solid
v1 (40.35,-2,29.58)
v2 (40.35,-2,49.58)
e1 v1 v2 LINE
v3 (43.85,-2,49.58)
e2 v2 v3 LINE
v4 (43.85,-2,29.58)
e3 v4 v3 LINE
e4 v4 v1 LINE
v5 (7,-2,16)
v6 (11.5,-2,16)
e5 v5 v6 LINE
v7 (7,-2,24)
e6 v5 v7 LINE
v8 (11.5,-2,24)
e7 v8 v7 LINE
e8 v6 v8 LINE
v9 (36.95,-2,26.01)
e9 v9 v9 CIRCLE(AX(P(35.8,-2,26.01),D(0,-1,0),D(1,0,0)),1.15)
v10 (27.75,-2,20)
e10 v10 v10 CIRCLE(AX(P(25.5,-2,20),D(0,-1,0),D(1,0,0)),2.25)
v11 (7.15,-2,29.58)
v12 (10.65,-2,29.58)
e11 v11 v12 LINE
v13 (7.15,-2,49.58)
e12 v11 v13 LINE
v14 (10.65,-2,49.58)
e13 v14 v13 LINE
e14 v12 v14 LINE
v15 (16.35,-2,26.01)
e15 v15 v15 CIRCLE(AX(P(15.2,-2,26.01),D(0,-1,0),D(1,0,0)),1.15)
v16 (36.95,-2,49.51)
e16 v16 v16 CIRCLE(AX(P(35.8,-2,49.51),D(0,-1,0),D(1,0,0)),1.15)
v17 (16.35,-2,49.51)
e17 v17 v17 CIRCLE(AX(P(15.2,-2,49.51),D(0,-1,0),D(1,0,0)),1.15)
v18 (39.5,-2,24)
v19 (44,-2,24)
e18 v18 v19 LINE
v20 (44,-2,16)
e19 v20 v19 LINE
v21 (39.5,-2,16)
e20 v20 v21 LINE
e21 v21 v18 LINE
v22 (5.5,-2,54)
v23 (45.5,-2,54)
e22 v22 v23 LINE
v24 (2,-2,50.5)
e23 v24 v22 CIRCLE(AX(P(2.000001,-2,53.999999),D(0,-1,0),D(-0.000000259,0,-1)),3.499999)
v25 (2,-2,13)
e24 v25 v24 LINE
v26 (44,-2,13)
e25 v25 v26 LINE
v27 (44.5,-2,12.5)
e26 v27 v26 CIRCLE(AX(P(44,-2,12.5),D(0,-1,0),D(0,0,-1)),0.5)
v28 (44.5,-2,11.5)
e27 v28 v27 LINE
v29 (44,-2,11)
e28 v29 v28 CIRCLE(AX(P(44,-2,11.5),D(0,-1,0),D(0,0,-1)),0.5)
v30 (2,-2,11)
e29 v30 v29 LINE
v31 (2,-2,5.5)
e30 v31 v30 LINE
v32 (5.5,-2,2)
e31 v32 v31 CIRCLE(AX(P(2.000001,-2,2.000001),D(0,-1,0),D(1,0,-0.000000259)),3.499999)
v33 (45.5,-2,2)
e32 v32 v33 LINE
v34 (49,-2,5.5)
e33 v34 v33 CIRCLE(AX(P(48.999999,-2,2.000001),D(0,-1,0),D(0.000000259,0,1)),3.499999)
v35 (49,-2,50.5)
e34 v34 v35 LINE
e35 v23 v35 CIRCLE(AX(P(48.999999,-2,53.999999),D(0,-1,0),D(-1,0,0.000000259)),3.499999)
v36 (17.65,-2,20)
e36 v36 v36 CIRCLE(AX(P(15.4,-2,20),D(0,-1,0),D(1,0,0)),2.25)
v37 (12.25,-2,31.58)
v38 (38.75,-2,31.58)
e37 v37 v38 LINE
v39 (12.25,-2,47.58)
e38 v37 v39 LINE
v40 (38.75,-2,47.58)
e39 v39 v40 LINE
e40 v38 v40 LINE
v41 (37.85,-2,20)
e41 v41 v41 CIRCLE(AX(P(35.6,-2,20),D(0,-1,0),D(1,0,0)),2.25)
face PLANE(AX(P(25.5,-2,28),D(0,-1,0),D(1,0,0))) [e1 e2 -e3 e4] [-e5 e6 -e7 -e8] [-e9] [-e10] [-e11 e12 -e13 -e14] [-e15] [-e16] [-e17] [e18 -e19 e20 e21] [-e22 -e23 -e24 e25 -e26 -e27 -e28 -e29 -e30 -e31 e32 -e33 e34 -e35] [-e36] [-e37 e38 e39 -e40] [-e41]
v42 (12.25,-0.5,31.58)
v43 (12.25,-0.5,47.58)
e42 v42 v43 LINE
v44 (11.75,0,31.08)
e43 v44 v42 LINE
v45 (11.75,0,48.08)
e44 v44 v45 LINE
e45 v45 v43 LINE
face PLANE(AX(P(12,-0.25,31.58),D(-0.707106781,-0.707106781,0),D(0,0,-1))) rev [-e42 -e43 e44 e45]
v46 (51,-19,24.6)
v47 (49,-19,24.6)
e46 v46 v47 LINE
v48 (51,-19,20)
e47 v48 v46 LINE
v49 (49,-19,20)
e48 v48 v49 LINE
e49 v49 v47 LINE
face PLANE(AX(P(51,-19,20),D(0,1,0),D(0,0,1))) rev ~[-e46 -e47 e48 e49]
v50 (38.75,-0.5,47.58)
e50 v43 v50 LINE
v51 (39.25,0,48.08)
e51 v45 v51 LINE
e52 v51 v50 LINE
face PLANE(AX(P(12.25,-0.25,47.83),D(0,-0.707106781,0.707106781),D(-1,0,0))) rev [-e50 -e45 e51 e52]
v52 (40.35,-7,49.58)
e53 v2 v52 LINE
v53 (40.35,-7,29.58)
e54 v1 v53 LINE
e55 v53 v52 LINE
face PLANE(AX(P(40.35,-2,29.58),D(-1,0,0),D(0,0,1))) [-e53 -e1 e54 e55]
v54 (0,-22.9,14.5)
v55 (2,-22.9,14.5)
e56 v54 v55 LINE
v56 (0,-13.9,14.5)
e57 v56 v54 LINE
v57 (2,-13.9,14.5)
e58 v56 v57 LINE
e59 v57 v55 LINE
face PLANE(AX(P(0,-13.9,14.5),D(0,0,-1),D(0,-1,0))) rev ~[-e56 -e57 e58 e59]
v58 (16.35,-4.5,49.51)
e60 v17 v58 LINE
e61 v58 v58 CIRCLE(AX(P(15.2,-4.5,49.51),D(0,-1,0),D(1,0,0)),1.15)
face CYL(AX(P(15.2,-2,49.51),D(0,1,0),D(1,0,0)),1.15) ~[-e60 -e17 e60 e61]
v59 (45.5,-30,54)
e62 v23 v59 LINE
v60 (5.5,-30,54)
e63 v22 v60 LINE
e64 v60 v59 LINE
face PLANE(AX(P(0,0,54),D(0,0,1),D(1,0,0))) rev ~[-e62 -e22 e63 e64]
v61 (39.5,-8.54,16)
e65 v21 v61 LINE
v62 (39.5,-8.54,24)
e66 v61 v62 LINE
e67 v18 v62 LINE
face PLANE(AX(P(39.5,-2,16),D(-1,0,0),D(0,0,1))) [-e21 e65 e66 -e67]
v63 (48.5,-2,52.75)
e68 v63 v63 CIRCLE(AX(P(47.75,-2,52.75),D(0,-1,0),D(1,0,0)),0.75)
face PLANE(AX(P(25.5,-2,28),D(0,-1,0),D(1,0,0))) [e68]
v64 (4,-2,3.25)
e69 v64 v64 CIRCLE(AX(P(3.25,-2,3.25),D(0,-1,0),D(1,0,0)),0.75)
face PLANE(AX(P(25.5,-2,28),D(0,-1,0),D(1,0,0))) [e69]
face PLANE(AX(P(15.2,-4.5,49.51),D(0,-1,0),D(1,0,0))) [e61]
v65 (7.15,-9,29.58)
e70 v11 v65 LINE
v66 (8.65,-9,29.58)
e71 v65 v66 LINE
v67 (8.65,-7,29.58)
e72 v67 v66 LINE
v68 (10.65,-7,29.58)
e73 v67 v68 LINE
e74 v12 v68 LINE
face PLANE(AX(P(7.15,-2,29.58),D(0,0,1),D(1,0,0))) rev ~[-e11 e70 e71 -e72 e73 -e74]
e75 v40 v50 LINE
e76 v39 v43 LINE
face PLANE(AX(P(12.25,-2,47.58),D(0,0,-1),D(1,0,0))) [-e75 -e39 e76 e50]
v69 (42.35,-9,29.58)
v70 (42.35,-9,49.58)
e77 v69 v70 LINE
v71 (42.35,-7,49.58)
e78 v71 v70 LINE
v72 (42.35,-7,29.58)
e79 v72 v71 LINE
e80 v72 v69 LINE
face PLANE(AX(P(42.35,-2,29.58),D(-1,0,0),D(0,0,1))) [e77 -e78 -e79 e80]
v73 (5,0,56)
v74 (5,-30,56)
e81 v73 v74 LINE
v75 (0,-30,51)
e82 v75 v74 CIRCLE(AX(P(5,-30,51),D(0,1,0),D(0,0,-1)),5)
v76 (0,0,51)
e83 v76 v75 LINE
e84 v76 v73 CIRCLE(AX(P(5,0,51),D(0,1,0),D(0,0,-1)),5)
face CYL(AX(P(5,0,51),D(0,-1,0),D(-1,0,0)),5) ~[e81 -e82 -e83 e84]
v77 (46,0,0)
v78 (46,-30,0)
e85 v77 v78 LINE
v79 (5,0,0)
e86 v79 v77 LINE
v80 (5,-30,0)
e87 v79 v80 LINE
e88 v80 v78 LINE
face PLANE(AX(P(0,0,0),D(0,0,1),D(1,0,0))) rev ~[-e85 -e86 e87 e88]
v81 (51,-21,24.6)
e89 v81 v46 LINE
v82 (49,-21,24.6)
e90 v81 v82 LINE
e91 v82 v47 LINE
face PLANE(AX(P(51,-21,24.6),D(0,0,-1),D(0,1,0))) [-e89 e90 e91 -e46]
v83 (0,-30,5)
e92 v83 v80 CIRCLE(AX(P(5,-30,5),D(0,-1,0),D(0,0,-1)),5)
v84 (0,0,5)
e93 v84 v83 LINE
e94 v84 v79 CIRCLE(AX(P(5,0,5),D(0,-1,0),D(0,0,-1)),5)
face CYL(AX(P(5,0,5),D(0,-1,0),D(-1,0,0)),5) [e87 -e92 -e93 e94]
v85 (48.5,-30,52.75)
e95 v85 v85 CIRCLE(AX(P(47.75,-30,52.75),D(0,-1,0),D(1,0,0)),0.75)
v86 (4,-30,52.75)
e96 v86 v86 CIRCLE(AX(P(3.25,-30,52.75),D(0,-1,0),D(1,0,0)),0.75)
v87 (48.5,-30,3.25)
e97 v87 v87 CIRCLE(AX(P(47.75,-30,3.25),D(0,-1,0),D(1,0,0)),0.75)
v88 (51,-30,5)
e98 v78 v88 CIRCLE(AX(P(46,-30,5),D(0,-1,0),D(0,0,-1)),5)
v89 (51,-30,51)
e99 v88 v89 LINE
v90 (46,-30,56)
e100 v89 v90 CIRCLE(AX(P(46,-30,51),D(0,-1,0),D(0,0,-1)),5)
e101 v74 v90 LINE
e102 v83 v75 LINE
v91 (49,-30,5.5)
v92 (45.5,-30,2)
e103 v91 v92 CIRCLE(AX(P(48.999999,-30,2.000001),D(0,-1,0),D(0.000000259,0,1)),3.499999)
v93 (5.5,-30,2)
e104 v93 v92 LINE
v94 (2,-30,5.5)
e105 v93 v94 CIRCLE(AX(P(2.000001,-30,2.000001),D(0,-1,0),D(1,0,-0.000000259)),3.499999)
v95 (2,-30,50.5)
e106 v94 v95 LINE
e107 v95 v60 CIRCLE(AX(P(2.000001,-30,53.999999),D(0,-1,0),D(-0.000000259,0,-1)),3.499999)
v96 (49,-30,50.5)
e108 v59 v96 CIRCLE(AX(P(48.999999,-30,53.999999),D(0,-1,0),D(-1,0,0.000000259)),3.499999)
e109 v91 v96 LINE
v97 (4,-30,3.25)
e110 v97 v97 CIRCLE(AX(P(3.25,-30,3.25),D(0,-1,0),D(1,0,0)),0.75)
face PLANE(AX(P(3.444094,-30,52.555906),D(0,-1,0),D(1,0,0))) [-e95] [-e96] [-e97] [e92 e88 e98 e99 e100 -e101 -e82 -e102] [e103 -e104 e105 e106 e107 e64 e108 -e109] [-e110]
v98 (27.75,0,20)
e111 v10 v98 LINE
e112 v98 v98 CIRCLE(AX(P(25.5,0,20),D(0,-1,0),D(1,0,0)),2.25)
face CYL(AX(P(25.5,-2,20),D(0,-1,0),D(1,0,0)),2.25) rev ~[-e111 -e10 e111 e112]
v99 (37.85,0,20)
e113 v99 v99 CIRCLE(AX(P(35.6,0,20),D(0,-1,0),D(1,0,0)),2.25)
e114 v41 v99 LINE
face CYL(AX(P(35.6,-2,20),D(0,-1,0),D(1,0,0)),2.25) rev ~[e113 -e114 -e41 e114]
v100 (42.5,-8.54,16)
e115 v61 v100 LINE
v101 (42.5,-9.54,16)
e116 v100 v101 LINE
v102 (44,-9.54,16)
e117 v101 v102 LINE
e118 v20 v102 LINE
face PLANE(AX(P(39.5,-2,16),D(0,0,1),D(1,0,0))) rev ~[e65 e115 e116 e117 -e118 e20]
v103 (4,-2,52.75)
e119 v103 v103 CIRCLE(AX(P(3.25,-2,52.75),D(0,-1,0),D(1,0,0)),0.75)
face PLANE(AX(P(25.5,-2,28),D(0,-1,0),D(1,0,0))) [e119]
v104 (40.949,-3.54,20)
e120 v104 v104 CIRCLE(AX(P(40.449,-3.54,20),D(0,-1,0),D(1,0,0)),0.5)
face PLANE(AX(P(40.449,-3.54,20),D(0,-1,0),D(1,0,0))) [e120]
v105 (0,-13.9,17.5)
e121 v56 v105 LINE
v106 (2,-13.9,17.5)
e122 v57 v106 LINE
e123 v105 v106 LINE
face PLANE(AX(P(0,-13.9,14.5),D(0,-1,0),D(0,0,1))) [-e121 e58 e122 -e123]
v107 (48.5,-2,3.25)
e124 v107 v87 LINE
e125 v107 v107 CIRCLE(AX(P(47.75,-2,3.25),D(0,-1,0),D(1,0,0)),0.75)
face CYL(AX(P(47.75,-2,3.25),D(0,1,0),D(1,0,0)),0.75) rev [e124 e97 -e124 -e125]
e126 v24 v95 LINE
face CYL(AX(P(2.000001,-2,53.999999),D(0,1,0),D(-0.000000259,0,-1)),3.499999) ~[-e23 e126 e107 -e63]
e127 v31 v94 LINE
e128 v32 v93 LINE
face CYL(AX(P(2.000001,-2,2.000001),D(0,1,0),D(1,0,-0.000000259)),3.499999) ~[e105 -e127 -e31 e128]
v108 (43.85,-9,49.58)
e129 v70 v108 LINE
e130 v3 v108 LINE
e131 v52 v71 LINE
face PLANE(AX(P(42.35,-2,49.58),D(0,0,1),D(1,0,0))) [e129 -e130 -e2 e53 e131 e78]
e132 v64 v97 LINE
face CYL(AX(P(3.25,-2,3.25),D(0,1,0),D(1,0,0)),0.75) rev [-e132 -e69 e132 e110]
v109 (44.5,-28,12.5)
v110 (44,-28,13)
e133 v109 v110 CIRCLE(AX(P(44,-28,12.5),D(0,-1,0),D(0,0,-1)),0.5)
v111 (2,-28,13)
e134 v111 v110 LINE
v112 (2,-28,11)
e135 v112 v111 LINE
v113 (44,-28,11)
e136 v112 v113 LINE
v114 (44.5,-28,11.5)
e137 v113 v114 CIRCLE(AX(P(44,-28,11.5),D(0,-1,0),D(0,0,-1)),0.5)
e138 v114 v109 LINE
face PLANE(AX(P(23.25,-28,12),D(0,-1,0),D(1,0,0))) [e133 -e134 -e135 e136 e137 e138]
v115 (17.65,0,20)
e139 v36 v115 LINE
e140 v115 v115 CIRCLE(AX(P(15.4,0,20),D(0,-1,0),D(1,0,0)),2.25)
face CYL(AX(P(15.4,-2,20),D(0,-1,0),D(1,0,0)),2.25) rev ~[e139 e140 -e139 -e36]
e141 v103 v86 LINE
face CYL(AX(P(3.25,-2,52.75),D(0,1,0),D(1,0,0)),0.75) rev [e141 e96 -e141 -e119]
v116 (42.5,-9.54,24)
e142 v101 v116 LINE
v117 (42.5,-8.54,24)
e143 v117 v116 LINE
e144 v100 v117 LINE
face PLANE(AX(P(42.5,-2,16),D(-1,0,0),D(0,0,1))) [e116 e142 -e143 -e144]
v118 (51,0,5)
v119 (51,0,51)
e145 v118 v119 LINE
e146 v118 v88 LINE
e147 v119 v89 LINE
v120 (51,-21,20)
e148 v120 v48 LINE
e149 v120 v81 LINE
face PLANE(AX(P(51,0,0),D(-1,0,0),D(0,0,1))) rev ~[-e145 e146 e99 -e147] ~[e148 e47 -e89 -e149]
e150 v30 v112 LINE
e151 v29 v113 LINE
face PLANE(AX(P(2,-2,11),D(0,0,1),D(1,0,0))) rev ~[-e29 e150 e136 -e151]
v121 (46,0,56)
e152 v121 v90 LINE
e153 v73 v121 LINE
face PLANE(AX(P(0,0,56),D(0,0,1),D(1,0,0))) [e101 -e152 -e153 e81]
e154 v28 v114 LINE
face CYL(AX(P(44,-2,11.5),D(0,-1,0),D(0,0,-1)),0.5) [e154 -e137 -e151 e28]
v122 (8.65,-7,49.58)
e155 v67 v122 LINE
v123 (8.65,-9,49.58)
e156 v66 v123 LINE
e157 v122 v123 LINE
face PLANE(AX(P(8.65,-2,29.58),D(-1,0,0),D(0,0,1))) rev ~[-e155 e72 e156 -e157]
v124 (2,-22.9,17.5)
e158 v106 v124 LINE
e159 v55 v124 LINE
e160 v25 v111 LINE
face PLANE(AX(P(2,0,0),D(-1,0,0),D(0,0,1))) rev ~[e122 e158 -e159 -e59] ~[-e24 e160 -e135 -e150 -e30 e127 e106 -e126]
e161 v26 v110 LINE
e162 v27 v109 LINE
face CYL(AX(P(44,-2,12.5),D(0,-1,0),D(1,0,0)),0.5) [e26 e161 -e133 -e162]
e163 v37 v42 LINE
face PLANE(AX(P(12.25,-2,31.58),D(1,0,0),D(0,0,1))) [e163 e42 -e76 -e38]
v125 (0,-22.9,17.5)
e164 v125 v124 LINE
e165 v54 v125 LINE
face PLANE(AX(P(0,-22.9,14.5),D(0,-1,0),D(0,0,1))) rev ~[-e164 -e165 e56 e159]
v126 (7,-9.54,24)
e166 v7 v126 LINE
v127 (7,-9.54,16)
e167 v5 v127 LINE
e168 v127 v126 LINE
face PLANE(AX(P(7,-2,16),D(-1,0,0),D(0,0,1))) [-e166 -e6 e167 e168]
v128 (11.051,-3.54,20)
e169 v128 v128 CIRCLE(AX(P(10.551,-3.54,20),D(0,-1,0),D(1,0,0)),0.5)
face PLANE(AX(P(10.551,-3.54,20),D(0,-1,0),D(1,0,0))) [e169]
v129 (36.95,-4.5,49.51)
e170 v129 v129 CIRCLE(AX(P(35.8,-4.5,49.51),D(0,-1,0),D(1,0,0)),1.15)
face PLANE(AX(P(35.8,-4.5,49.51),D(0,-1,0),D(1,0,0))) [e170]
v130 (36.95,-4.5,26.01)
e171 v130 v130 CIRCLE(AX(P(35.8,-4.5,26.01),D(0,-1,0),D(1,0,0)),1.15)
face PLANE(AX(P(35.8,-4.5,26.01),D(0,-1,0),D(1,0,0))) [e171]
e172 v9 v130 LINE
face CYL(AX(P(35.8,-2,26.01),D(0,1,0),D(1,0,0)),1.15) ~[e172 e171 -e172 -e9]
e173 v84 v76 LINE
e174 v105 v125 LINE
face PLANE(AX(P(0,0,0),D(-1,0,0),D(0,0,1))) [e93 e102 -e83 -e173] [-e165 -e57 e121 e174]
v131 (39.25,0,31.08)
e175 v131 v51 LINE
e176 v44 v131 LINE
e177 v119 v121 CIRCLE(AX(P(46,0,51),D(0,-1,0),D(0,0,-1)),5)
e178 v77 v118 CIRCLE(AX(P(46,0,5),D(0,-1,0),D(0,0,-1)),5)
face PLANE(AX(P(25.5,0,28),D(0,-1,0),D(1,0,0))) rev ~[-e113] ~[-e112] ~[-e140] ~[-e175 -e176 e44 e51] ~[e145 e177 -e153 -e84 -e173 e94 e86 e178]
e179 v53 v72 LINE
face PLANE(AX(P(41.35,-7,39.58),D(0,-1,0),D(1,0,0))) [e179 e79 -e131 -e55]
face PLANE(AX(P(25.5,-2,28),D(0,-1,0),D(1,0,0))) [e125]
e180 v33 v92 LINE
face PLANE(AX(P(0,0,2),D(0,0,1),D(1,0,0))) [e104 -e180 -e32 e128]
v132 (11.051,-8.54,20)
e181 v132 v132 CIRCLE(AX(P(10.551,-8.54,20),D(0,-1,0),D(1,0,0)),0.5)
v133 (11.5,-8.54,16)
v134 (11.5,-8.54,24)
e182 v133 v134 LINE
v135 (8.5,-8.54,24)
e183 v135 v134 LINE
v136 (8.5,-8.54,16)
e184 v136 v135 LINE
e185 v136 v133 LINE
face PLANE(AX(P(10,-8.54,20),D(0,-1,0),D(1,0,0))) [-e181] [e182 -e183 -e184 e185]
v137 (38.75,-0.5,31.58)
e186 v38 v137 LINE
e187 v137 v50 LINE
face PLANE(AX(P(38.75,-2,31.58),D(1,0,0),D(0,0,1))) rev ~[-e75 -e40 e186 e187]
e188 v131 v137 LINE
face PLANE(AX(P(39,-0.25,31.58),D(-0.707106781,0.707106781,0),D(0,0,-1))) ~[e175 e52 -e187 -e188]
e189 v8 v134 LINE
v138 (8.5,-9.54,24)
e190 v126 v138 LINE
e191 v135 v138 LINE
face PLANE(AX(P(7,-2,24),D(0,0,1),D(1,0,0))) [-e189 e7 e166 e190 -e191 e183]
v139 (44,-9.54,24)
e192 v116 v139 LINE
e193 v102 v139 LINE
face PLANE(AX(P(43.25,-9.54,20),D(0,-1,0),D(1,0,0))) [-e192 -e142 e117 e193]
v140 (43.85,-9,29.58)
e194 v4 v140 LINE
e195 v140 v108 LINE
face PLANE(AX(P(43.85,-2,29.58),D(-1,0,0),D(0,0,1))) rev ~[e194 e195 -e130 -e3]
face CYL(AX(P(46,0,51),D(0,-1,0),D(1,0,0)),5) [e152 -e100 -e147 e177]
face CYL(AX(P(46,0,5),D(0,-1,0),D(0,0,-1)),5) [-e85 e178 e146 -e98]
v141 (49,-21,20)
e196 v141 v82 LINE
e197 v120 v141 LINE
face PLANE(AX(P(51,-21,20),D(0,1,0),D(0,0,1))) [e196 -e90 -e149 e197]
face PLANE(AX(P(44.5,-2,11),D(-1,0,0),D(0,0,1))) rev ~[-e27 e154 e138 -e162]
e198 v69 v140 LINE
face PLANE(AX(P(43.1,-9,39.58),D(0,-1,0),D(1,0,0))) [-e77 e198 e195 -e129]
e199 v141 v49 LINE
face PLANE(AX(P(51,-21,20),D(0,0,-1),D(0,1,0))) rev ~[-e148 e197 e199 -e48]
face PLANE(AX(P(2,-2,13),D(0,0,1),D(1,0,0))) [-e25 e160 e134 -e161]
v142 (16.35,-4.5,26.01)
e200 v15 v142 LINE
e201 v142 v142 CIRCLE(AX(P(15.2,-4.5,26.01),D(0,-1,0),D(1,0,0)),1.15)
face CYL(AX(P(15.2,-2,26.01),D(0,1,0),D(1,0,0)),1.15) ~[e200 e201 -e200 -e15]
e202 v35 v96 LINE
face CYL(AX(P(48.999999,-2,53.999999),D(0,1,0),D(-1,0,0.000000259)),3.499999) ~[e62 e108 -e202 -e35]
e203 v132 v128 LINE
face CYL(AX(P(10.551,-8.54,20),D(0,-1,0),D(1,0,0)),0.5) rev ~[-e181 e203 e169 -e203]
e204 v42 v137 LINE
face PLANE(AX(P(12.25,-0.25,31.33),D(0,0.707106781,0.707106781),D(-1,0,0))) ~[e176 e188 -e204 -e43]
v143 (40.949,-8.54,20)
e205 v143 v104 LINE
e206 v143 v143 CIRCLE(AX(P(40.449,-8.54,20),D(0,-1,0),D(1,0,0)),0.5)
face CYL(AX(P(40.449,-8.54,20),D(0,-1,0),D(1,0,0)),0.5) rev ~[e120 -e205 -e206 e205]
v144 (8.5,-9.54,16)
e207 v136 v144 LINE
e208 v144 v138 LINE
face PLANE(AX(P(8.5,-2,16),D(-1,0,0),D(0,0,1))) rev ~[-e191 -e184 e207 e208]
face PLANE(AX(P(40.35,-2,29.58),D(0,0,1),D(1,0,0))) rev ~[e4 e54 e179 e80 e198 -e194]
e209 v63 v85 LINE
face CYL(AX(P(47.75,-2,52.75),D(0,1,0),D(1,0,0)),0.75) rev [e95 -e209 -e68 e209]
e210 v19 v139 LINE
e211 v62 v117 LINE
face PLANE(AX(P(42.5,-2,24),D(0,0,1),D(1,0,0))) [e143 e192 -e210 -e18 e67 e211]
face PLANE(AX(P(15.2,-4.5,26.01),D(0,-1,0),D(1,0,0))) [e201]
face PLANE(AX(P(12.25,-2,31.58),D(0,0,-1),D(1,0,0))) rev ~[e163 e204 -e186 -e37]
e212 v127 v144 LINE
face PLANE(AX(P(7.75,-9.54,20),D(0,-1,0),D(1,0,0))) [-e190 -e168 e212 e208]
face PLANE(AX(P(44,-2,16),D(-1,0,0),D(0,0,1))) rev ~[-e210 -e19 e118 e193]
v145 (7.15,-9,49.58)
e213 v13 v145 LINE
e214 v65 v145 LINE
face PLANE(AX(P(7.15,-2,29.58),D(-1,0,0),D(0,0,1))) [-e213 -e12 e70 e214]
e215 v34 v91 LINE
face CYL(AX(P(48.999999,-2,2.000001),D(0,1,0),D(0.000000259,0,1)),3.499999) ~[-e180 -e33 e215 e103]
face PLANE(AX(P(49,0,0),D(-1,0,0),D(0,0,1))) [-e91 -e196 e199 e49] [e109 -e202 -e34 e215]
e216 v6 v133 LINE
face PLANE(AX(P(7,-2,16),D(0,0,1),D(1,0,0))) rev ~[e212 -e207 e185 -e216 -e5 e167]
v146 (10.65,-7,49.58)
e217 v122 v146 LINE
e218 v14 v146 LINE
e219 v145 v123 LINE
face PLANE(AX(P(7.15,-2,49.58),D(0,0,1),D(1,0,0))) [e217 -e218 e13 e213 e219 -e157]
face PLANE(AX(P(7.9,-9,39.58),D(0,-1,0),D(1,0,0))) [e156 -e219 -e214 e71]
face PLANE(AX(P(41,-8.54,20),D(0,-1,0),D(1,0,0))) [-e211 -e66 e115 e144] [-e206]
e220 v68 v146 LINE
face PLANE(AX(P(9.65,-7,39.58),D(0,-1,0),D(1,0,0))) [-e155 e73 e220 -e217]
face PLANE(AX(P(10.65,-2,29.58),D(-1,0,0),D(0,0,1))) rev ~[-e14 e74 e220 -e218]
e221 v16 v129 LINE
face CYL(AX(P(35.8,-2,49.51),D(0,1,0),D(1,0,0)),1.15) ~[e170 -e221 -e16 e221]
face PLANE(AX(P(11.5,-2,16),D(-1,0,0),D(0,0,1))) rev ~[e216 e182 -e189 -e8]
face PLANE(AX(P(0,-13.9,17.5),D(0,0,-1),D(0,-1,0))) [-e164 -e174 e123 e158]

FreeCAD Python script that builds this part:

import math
import FreeCAD as App
import Part
import Sketcher


def edges_at(feature, points):
    """Names of the edges that pass closest to the given points."""
    edges = feature.Shape.Edges
    near = lambda p: min(range(len(edges)), key=lambda i: edges[i].distToShape(Part.Vertex(*p))[0])
    return sorted({f"Edge{near(p) + 1}" for p in points})


def faces_at(feature, points):
    """Names of the faces that lie closest to the given points."""
    faces = feature.Shape.Faces
    near = lambda p: min(range(len(faces)), key=lambda i: faces[i].distToShape(Part.Vertex(*p))[0])
    return sorted({f"Face{near(p) + 1}" for p in points})


def add_polygon(sketch, points):
    """Adds a closed chain of lines whose ends are joined by coincident constraints."""
    first, n = sketch.GeometryCount, len(points)
    for a, b in zip(points, points[1:] + points[:1]):
        sketch.addGeometry(Part.LineSegment(App.Vector(*a, 0), App.Vector(*b, 0)), False)
    for i in range(n):
        sketch.addConstraint(Sketcher.Constraint("Coincident", first + i, 2, first + (i + 1) % n, 1))

doc = App.newDocument("Part")
body = doc.addObject("PartDesign::Body", "Body")

sketch1 = body.newObject("Sketcher::SketchObject", "Sketch")
sketch1.AttachmentSupport = (doc.getObject("XZ_Plane"), [""])
sketch1.MapMode = "FlatFace"
add_polygon(sketch1, [(0, 56), (0, 0), (51, 0), (51, 56)])
sketch1.addConstraint(Sketcher.Constraint("Vertical", 0))
sketch1.addConstraint(Sketcher.Constraint("Horizontal", 1))
sketch1.addConstraint(Sketcher.Constraint("Vertical", 2))
sketch1.addConstraint(Sketcher.Constraint("Horizontal", 3))
sketch1.addConstraint(Sketcher.Constraint("Coincident", 0, 2, -1, 1))
sketch1.addConstraint(Sketcher.Constraint("DistanceX", 1, 1, 1, 2, 51.0))
sketch1.addConstraint(Sketcher.Constraint("DistanceY", 0, 2, 0, 1, 56.0))
pad1 = body.newObject("PartDesign::Pad", "Pad")
pad1.Profile = sketch1
pad1.Length = 30
doc.recompute()

thickness = body.newObject("PartDesign::Thickness", "Thickness")
thickness.Base = (pad1, faces_at(pad1, [(25.5, -30, 28)]))
thickness.Value = 2
thickness.Reversed = True
thickness.Join = "Arc"
doc.recompute()

fillet = body.newObject("PartDesign::Fillet", "Fillet")
fillet.Base = (thickness, edges_at(thickness, [
    (0, -15, 56),
    (0, -15, 0),
    (51, -15, 0),
    (51, -15, 56),
]))
fillet.Radius = 5

sketch2 = body.newObject("Sketcher::SketchObject", "Sketch001")
sketch2.AttachmentSupport = (doc.getObject("XZ_Plane"), [""])
sketch2.MapMode = "FlatFace"
sketch2.AttachmentOffset = App.Placement(App.Vector(0, 0, 2), App.Rotation())
add_polygon(sketch2, [(12.25, 47.58), (12.25, 31.58), (38.75, 31.58), (38.75, 47.58)])
sketch2.addConstraint(Sketcher.Constraint("Vertical", 0))
sketch2.addConstraint(Sketcher.Constraint("Horizontal", 1))
sketch2.addConstraint(Sketcher.Constraint("Vertical", 2))
sketch2.addConstraint(Sketcher.Constraint("Horizontal", 3))
sketch2.addConstraint(Sketcher.Constraint("DistanceY", 0, 2, 0, 1, 16.0))
sketch2.addConstraint(Sketcher.Constraint("DistanceX", 1, 1, 1, 2, 26.5))
sketch2.addConstraint(Sketcher.Constraint("DistanceX", -1, 1, 0, 2, 12.25))
sketch2.addConstraint(Sketcher.Constraint("DistanceY", -1, 1, 0, 2, 31.58))
pocket1 = body.newObject("PartDesign::Pocket", "Pocket")
pocket1.Profile = sketch2
pocket1.Type = "ThroughAll"
doc.recompute()

chamfer = body.newObject("PartDesign::Chamfer", "Chamfer")
chamfer.Base = (pocket1, edges_at(pocket1, [
    (25.5, 0, 47.58),
    (38.75, 0, 39.58),
    (25.5, 0, 31.58),
    (12.25, 0, 39.58),
]))
chamfer.Size = 0.5

sketch3 = body.newObject("Sketcher::SketchObject", "Sketch002")
sketch3.AttachmentSupport = (doc.getObject("XZ_Plane"), [""])
sketch3.MapMode = "FlatFace"
sketch3.AttachmentOffset = App.Placement(App.Vector(0, 0, 2), App.Rotation())
add_polygon(sketch3, [(2, 13), (2, 11), (44.5, 11), (44.5, 13)])
sketch3.addConstraint(Sketcher.Constraint("Vertical", 0))
sketch3.addConstraint(Sketcher.Constraint("Horizontal", 1))
sketch3.addConstraint(Sketcher.Constraint("Vertical", 2))
sketch3.addConstraint(Sketcher.Constraint("Horizontal", 3))
sketch3.addConstraint(Sketcher.Constraint("DistanceY", 0, 2, 0, 1, 2.0))
sketch3.addConstraint(Sketcher.Constraint("DistanceX", 1, 1, 1, 2, 42.5))
sketch3.addConstraint(Sketcher.Constraint("DistanceX", -1, 1, 0, 2, 2.0))
sketch3.addConstraint(Sketcher.Constraint("DistanceY", -1, 1, 0, 2, 11.0))
pad2 = body.newObject("PartDesign::Pad", "Pad001")
pad2.Profile = sketch3
pad2.Length = 26
doc.recompute()

fillet2 = body.newObject("PartDesign::Fillet", "Fillet001")
fillet2.Base = (pad2, edges_at(pad2, [(44.5, -15, 11), (44.5, -15, 13)]))
fillet2.Radius = 0.5

sketch4 = body.newObject("Sketcher::SketchObject", "Sketch003")
sketch4.AttachmentSupport = (doc.getObject("YZ_Plane"), [""])
sketch4.MapMode = "FlatFace"
add_polygon(sketch4, [(-13.9, 17.5), (-13.9, 14.5), (-22.9, 14.5), (-22.9, 17.5)])
sketch4.addConstraint(Sketcher.Constraint("Vertical", 0))
sketch4.addConstraint(Sketcher.Constraint("Horizontal", 1))
sketch4.addConstraint(Sketcher.Constraint("Vertical", 2))
sketch4.addConstraint(Sketcher.Constraint("Horizontal", 3))
sketch4.addConstraint(Sketcher.Constraint("DistanceX", 1, 2, 1, 1, 9.0))
sketch4.addConstraint(Sketcher.Constraint("DistanceY", 0, 2, 0, 1, 3.0))
sketch4.addConstraint(Sketcher.Constraint("DistanceX", 0, 2, -1, 1, 13.9))
sketch4.addConstraint(Sketcher.Constraint("DistanceY", -1, 1, 0, 2, 14.5))
pocket2 = body.newObject("PartDesign::Pocket", "Pocket001")
pocket2.Profile = sketch4
pocket2.Length = 3
pocket2.Reversed = True

sketch5 = body.newObject("Sketcher::SketchObject", "Sketch004")
sketch5.AttachmentSupport = (doc.getObject("XZ_Plane"), [""])
sketch5.MapMode = "FlatFace"
sketch5.AttachmentOffset = App.Placement(App.Vector(0, 0, 2), App.Rotation())
add_polygon(sketch5, [(8.65, 49.58), (8.65, 29.58), (10.65, 29.58), (10.65, 49.58)])
add_polygon(sketch5, [(40.35, 49.58), (40.35, 29.58), (42.35, 29.58), (42.35, 49.58)])
sketch5.addConstraint(Sketcher.Constraint("Vertical", 0))
sketch5.addConstraint(Sketcher.Constraint("Horizontal", 1))
sketch5.addConstraint(Sketcher.Constraint("Vertical", 2))
sketch5.addConstraint(Sketcher.Constraint("Horizontal", 3))
sketch5.addConstraint(Sketcher.Constraint("Vertical", 4))
sketch5.addConstraint(Sketcher.Constraint("Horizontal", 5))
sketch5.addConstraint(Sketcher.Constraint("Vertical", 6))
sketch5.addConstraint(Sketcher.Constraint("Horizontal", 7))
sketch5.addConstraint(Sketcher.Constraint("Horizontal", 1, 2, 4, 2))
sketch5.addConstraint(Sketcher.Constraint("Horizontal", 3, 2, 6, 2))
sketch5.addConstraint(Sketcher.Constraint("Equal", 3, 5))
sketch5.addConstraint(Sketcher.Constraint("DistanceX", 1, 1, 1, 2, 2.0))
sketch5.addConstraint(Sketcher.Constraint("DistanceY", 0, 2, 0, 1, 20.0))
sketch5.addConstraint(Sketcher.Constraint("DistanceX", 1, 2, 4, 2, 29.7))
sketch5.addConstraint(Sketcher.Constraint("DistanceX", -1, 1, 0, 2, 8.65))
sketch5.addConstraint(Sketcher.Constraint("DistanceY", -1, 1, 0, 2, 29.58))
pad3 = body.newObject("PartDesign::Pad", "Pad002")
pad3.Profile = sketch5
pad3.Length = 5

sketch6 = body.newObject("Sketcher::SketchObject", "Sketch005")
sketch6.AttachmentSupport = (doc.getObject("XZ_Plane"), [""])
sketch6.MapMode = "FlatFace"
sketch6.AttachmentOffset = App.Placement(App.Vector(0, 0, 2), App.Rotation())
add_polygon(sketch6, [(7.15, 49.58), (7.15, 29.58), (8.65, 29.58), (8.65, 49.58)])
add_polygon(sketch6, [(42.35, 49.58), (42.35, 29.58), (43.85, 29.58), (43.85, 49.58)])
sketch6.addConstraint(Sketcher.Constraint("Vertical", 0))
sketch6.addConstraint(Sketcher.Constraint("Horizontal", 1))
sketch6.addConstraint(Sketcher.Constraint("Vertical", 2))
sketch6.addConstraint(Sketcher.Constraint("Horizontal", 3))
sketch6.addConstraint(Sketcher.Constraint("Vertical", 4))
sketch6.addConstraint(Sketcher.Constraint("Horizontal", 5))
sketch6.addConstraint(Sketcher.Constraint("Vertical", 6))
sketch6.addConstraint(Sketcher.Constraint("Horizontal", 7))
sketch6.addConstraint(Sketcher.Constraint("Horizontal", 1, 2, 4, 2))
sketch6.addConstraint(Sketcher.Constraint("Horizontal", 3, 2, 6, 2))
sketch6.addConstraint(Sketcher.Constraint("Equal", 3, 5))
sketch6.addConstraint(Sketcher.Constraint("DistanceY", 0, 2, 0, 1, 20.0))
sketch6.addConstraint(Sketcher.Constraint("DistanceX", 1, 1, 1, 2, 1.5))
sketch6.addConstraint(Sketcher.Constraint("DistanceX", 1, 2, 4, 2, 33.7))
sketch6.addConstraint(Sketcher.Constraint("DistanceX", -1, 1, 0, 2, 7.15))
sketch6.addConstraint(Sketcher.Constraint("DistanceY", -1, 1, 0, 2, 29.58))
pad4 = body.newObject("PartDesign::Pad", "Pad003")
pad4.Profile = sketch6
pad4.Length = 7

sketch7 = body.newObject("Sketcher::SketchObject", "Sketch006")
sketch7.AttachmentSupport = (doc.getObject("XZ_Plane"), [""])
sketch7.MapMode = "FlatFace"
sketch7.AttachmentOffset = App.Placement(App.Vector(0, 0, 2), App.Rotation())
add_polygon(sketch7, [(8.5, 24), (8.5, 16), (11.5, 16), (11.5, 24)])
add_polygon(sketch7, [(39.5, 24), (39.5, 16), (42.5, 16), (42.5, 24)])
sketch7.addConstraint(Sketcher.Constraint("Vertical", 0))
sketch7.addConstraint(Sketcher.Constraint("Horizontal", 1))
sketch7.addConstraint(Sketcher.Constraint("Vertical", 2))
sketch7.addConstraint(Sketcher.Constraint("Horizontal", 3))
sketch7.addConstraint(Sketcher.Constraint("Vertical", 4))
sketch7.addConstraint(Sketcher.Constraint("Horizontal", 5))
sketch7.addConstraint(Sketcher.Constraint("Vertical", 6))
sketch7.addConstraint(Sketcher.Constraint("Horizontal", 7))
sketch7.addConstraint(Sketcher.Constraint("Horizontal", 1, 2, 4, 2))
sketch7.addConstraint(Sketcher.Constraint("Horizontal", 3, 2, 6, 2))
sketch7.addConstraint(Sketcher.Constraint("Equal", 3, 5))
sketch7.addConstraint(Sketcher.Constraint("DistanceX", 1, 1, 1, 2, 3.0))
sketch7.addConstraint(Sketcher.Constraint("DistanceY", 0, 2, 0, 1, 8.0))
sketch7.addConstraint(Sketcher.Constraint("DistanceY", -1, 1, 0, 2, 16.0))
sketch7.addConstraint(Sketcher.Constraint("DistanceX", 1, 2, 4, 2, 28.0))
sketch7.addConstraint(Sketcher.Constraint("DistanceX", -1, 1, 0, 2, 8.5))
pad5 = body.newObject("PartDesign::Pad", "Pad004")
pad5.Profile = sketch7
pad5.Length = 6.54

sketch8 = body.newObject("Sketcher::SketchObject", "Sketch007")
sketch8.AttachmentSupport = (doc.getObject("XZ_Plane"), [""])
sketch8.MapMode = "FlatFace"
sketch8.AttachmentOffset = App.Placement(App.Vector(0, 0, 2), App.Rotation())
sketch8.addGeometry(Part.Circle(App.Vector(15.4, 20, 0), App.Vector(0, 0, 1), 2.25), False)
sketch8.addGeometry(Part.Circle(App.Vector(25.5, 20, 0), App.Vector(0, 0, 1), 2.25), False)
sketch8.addGeometry(Part.Circle(App.Vector(35.6, 20, 0), App.Vector(0, 0, 1), 2.25), False)
sketch8.addConstraint(Sketcher.Constraint("Equal", 0, 1))
sketch8.addConstraint(Sketcher.Constraint("Equal", 1, 2))
sketch8.addConstraint(Sketcher.Constraint("Horizontal", 0, 3, 1, 3))
sketch8.addConstraint(Sketcher.Constraint("Horizontal", 1, 3, 2, 3))
sketch8.addConstraint(Sketcher.Constraint("Diameter", 0, 4.5))
sketch8.addConstraint(Sketcher.Constraint("DistanceY", -1, 1, 0, 3, 20.0))
sketch8.addConstraint(Sketcher.Constraint("DistanceX", -1, 1, 0, 3, 15.4))
sketch8.addConstraint(Sketcher.Constraint("DistanceX", -1, 1, 1, 3, 25.5))
sketch8.addConstraint(Sketcher.Constraint("DistanceX", -1, 1, 2, 3, 35.6))
pocket3 = body.newObject("PartDesign::Pocket", "Pocket002")
pocket3.Profile = sketch8
pocket3.Type = "ThroughAll"

sketch9 = body.newObject("Sketcher::SketchObject", "Sketch008")
sketch9.AttachmentSupport = (doc.getObject("XZ_Plane"), [""])
sketch9.MapMode = "FlatFace"
sketch9.AttachmentOffset = App.Placement(App.Vector(0, 0, 2), App.Rotation())
add_polygon(sketch9, [(7, 24), (7, 16), (8.5, 16), (8.5, 24)])
add_polygon(sketch9, [(42.5, 24), (42.5, 16), (44, 16), (44, 24)])
sketch9.addConstraint(Sketcher.Constraint("Vertical", 0))
sketch9.addConstraint(Sketcher.Constraint("Horizontal", 1))
sketch9.addConstraint(Sketcher.Constraint("Vertical", 2))
sketch9.addConstraint(Sketcher.Constraint("Horizontal", 3))
sketch9.addConstraint(Sketcher.Constraint("Vertical", 4))
sketch9.addConstraint(Sketcher.Constraint("Horizontal", 5))
sketch9.addConstraint(Sketcher.Constraint("Vertical", 6))
sketch9.addConstraint(Sketcher.Constraint("Horizontal", 7))
sketch9.addConstraint(Sketcher.Constraint("Horizontal", 1, 2, 4, 2))
sketch9.addConstraint(Sketcher.Constraint("Horizontal", 3, 2, 6, 2))
sketch9.addConstraint(Sketcher.Constraint("Equal", 3, 5))
sketch9.addConstraint(Sketcher.Constraint("DistanceY", 0, 2, 0, 1, 8.0))
sketch9.addConstraint(Sketcher.Constraint("DistanceX", 1, 1, 1, 2, 1.5))
sketch9.addConstraint(Sketcher.Constraint("DistanceX", -1, 1, 0, 2, 7.0))
sketch9.addConstraint(Sketcher.Constraint("DistanceY", -1, 1, 0, 2, 16.0))
sketch9.addConstraint(Sketcher.Constraint("DistanceX", -1, 1, 5, 2, 44.0))
pad6 = body.newObject("PartDesign::Pad", "Pad005")
pad6.Profile = sketch9
pad6.Length = 7.54

sketch10 = body.newObject("Sketcher::SketchObject", "Sketch009")
sketch10.AttachmentSupport = (doc.getObject("XZ_Plane"), [""])
sketch10.MapMode = "FlatFace"
sketch10.AttachmentOffset = App.Placement(App.Vector(0, 0, 8.54), App.Rotation())
sketch10.addGeometry(Part.Circle(App.Vector(10.551, 20, 0), App.Vector(0, 0, 1), 0.5), False)
sketch10.addGeometry(Part.Circle(App.Vector(40.449, 20, 0), App.Vector(0, 0, 1), 0.5), False)
sketch10.addConstraint(Sketcher.Constraint("Equal", 0, 1))
sketch10.addConstraint(Sketcher.Constraint("Horizontal", 0, 3, 1, 3))
sketch10.addConstraint(Sketcher.Constraint("Diameter", 0, 1.0))
sketch10.addConstraint(Sketcher.Constraint("DistanceY", -1, 1, 0, 3, 20.0))
sketch10.addConstraint(Sketcher.Constraint("DistanceX", -1, 1, 0, 3, 10.551))
sketch10.addConstraint(Sketcher.Constraint("DistanceX", -1, 1, 1, 3, 40.449))
pocket4 = body.newObject("PartDesign::Pocket", "Pocket003")
pocket4.Profile = sketch10
pocket4.Length = 5

sketch11 = body.newObject("Sketcher::SketchObject", "Sketch010")
sketch11.AttachmentSupport = (doc.getObject("XZ_Plane"), [""])
sketch11.MapMode = "FlatFace"
sketch11.AttachmentOffset = App.Placement(App.Vector(0, 0, 2), App.Rotation())
sketch11.addGeometry(Part.Circle(App.Vector(15.2, 49.51, 0), App.Vector(0, 0, 1), 1.15), False)
sketch11.addGeometry(Part.Circle(App.Vector(35.8, 49.51, 0), App.Vector(0, 0, 1), 1.15), False)
sketch11.addGeometry(Part.Circle(App.Vector(35.8, 26.01, 0), App.Vector(0, 0, 1), 1.15), False)
sketch11.addGeometry(Part.Circle(App.Vector(15.2, 26.01, 0), App.Vector(0, 0, 1), 1.15), False)
sketch11.addConstraint(Sketcher.Constraint("Equal", 0, 1))
sketch11.addConstraint(Sketcher.Constraint("Equal", 1, 2))
sketch11.addConstraint(Sketcher.Constraint("Equal", 2, 3))
sketch11.addConstraint(Sketcher.Constraint("Horizontal", 0, 3, 1, 3))
sketch11.addConstraint(Sketcher.Constraint("Horizontal", 2, 3, 3, 3))
sketch11.addConstraint(Sketcher.Constraint("Vertical", 1, 3, 2, 3))
sketch11.addConstraint(Sketcher.Constraint("Vertical", 0, 3, 3, 3))
sketch11.addConstraint(Sketcher.Constraint("Diameter", 0, 2.3))
sketch11.addConstraint(Sketcher.Constraint("DistanceX", -1, 1, 0, 3, 15.2))
sketch11.addConstraint(Sketcher.Constraint("DistanceX", -1, 1, 1, 3, 35.8))
sketch11.addConstraint(Sketcher.Constraint("DistanceY", 2, 3, 1, 3, 23.5))
sketch11.addConstraint(Sketcher.Constraint("DistanceY", -1, 1, 0, 3, 49.51))
pad7 = body.newObject("PartDesign::Pad", "Pad006")
pad7.Profile = sketch11
pad7.Length = 2.5

sketch12 = body.newObject("Sketcher::SketchObject", "Sketch011")
sketch12.AttachmentSupport = (doc.getObject("XZ_Plane"), [""])
sketch12.MapMode = "FlatFace"
sketch12.AttachmentOffset = App.Placement(App.Vector(0, 0, 2), App.Rotation())
sketch12.addGeometry(Part.LineSegment(App.Vector(5.5, 54, 0), App.Vector(2, 54, 0)), False)
sketch12.addGeometry(Part.LineSegment(App.Vector(2, 54, 0), App.Vector(2, 50.5, 0)), False)
sketch12.addGeometry(Part.ArcOfCircle(Part.Circle(App.Vector(2.000001, 53.999999, 0), App.Vector(0, 0, 1), 3.499999), math.radians(-90.000015), math.radians(0.000015)), False)
sketch12.addGeometry(Part.Circle(App.Vector(3.25, 52.75, 0), App.Vector(0, 0, 1), 0.75), False)
sketch12.addGeometry(Part.LineSegment(App.Vector(49, 50.5, 0), App.Vector(49, 54, 0)), False)
sketch12.addGeometry(Part.LineSegment(App.Vector(49, 54, 0), App.Vector(45.5, 54, 0)), False)
sketch12.addGeometry(Part.ArcOfCircle(Part.Circle(App.Vector(48.999999, 53.999999, 0), App.Vector(0, 0, 1), 3.499999), math.radians(179.999985), math.radians(270.000015)), False)
sketch12.addGeometry(Part.Circle(App.Vector(47.75, 52.75, 0), App.Vector(0, 0, 1), 0.75), False)
sketch12.addGeometry(Part.LineSegment(App.Vector(45.5, 2, 0), App.Vector(49, 2, 0)), False)
sketch12.addGeometry(Part.LineSegment(App.Vector(49, 2, 0), App.Vector(49, 5.5, 0)), False)
sketch12.addGeometry(Part.ArcOfCircle(Part.Circle(App.Vector(48.999999, 2.000001, 0), App.Vector(0, 0, 1), 3.499999), math.radians(89.999985), math.radians(180.000015)), False)
sketch12.addGeometry(Part.Circle(App.Vector(47.75, 3.25, 0), App.Vector(0, 0, 1), 0.75), False)
sketch12.addGeometry(Part.LineSegment(App.Vector(2, 5.5, 0), App.Vector(2, 2, 0)), False)
sketch12.addGeometry(Part.LineSegment(App.Vector(2, 2, 0), App.Vector(5.5, 2, 0)), False)
sketch12.addGeometry(Part.ArcOfCircle(Part.Circle(App.Vector(2.000001, 2.000001, 0), App.Vector(0, 0, 1), 3.499999), math.radians(-0.000015), math.radians(90.000015)), False)
sketch12.addGeometry(Part.Circle(App.Vector(3.25, 3.25, 0), App.Vector(0, 0, 1), 0.75), False)
sketch12.addConstraint(Sketcher.Constraint("Coincident", 0, 2, 1, 1))
sketch12.addConstraint(Sketcher.Constraint("Coincident", 1, 2, 2, 1))
sketch12.addConstraint(Sketcher.Constraint("Coincident", 2, 2, 0, 1))
sketch12.addConstraint(Sketcher.Constraint("Coincident", 4, 2, 5, 1))
sketch12.addConstraint(Sketcher.Constraint("Coincident", 5, 2, 6, 1))
sketch12.addConstraint(Sketcher.Constraint("Coincident", 6, 2, 4, 1))
sketch12.addConstraint(Sketcher.Constraint("Coincident", 8, 2, 9, 1))
sketch12.addConstraint(Sketcher.Constraint("Coincident", 9, 2, 10, 1))
sketch12.addConstraint(Sketcher.Constraint("Coincident", 10, 2, 8, 1))
sketch12.addConstraint(Sketcher.Constraint("Coincident", 12, 2, 13, 1))
sketch12.addConstraint(Sketcher.Constraint("Coincident", 13, 2, 14, 1))
sketch12.addConstraint(Sketcher.Constraint("Coincident", 14, 2, 12, 1))
sketch12.addConstraint(Sketcher.Constraint("Horizontal", 0))
sketch12.addConstraint(Sketcher.Constraint("Vertical", 1))
sketch12.addConstraint(Sketcher.Constraint("Vertical", 4))
sketch12.addConstraint(Sketcher.Constraint("Horizontal", 5))
sketch12.addConstraint(Sketcher.Constraint("Horizontal", 8))
sketch12.addConstraint(Sketcher.Constraint("Vertical", 9))
sketch12.addConstraint(Sketcher.Constraint("Vertical", 12))
sketch12.addConstraint(Sketcher.Constraint("Horizontal", 13))
sketch12.addConstraint(Sketcher.Constraint("Coincident", 0, 2, 2, 3))
sketch12.addConstraint(Sketcher.Constraint("Coincident", 4, 2, 6, 3))
sketch12.addConstraint(Sketcher.Constraint("Coincident", 8, 2, 10, 3))
sketch12.addConstraint(Sketcher.Constraint("Coincident", 12, 2, 14, 3))
sketch12.addConstraint(Sketcher.Constraint("Equal", 2, 6))
sketch12.addConstraint(Sketcher.Constraint("Equal", 3, 7))
sketch12.addConstraint(Sketcher.Constraint("Equal", 6, 10))
sketch12.addConstraint(Sketcher.Constraint("Equal", 7, 11))
sketch12.addConstraint(Sketcher.Constraint("Equal", 10, 14))
sketch12.addConstraint(Sketcher.Constraint("Equal", 11, 15))
sketch12.addConstraint(Sketcher.Constraint("Horizontal", 2, 3, 6, 3))
sketch12.addConstraint(Sketcher.Constraint("Horizontal", 3, 3, 7, 3))
sketch12.addConstraint(Sketcher.Constraint("Horizontal", 10, 3, 14, 3))
sketch12.addConstraint(Sketcher.Constraint("Horizontal", 11, 3, 15, 3))
sketch12.addConstraint(Sketcher.Constraint("Vertical", 6, 3, 10, 3))
sketch12.addConstraint(Sketcher.Constraint("Vertical", 7, 3, 11, 3))
sketch12.addConstraint(Sketcher.Constraint("Vertical", 2, 3, 14, 3))
sketch12.addConstraint(Sketcher.Constraint("Vertical", 3, 3, 15, 3))
sketch12.addConstraint(Sketcher.Constraint("Diameter", 3, 1.5))
sketch12.addConstraint(Sketcher.Constraint("Radius", 2, 3.499999))
sketch12.addConstraint(Sketcher.Constraint("DistanceX", -1, 1, 2, 3, 2.000001))
sketch12.addConstraint(Sketcher.Constraint("DistanceY", -1, 1, 2, 3, 53.999999))
sketch12.addConstraint(Sketcher.Constraint("DistanceX", -1, 1, 6, 3, 48.999999))
sketch12.addConstraint(Sketcher.Constraint("DistanceY", -1, 1, 10, 3, 2.000001))
sketch12.addConstraint(Sketcher.Constraint("DistanceX", 3, 3, 7, 3, 44.5))
sketch12.addConstraint(Sketcher.Constraint("DistanceY", 11, 3, 7, 3, 49.5))
sketch12.addConstraint(Sketcher.Constraint("DistanceX", -1, 1, 3, 3, 3.25))
sketch12.addConstraint(Sketcher.Constraint("DistanceY", -1, 1, 3, 3, 52.75))
pad8 = body.newObject("PartDesign::Pad", "Pad007")
pad8.Profile = sketch12
pad8.Length = 28

sketch13 = body.newObject("Sketcher::SketchObject", "Sketch012")
sketch13.AttachmentSupport = (doc.getObject("YZ_Plane"), [""])
sketch13.MapMode = "FlatFace"
sketch13.AttachmentOffset = App.Placement(App.Vector(0, 0, 51), App.Rotation())
add_polygon(sketch13, [(-21, 24.6), (-21, 20), (-19, 20), (-19, 24.6)])
sketch13.addConstraint(Sketcher.Constraint("Vertical", 0))
sketch13.addConstraint(Sketcher.Constraint("Horizontal", 1))
sketch13.addConstraint(Sketcher.Constraint("Vertical", 2))
sketch13.addConstraint(Sketcher.Constraint("Horizontal", 3))
sketch13.addConstraint(Sketcher.Constraint("DistanceX", 1, 1, 1, 2, 2.0))
sketch13.addConstraint(Sketcher.Constraint("DistanceY", 0, 2, 0, 1, 4.6))
sketch13.addConstraint(Sketcher.Constraint("DistanceX", 0, 2, -1, 1, 21.0))
sketch13.addConstraint(Sketcher.Constraint("DistanceY", -1, 1, 0, 2, 20.0))
pocket5 = body.newObject("PartDesign::Pocket", "Pocket004")
pocket5.Profile = sketch13
pocket5.Length = 2

doc.recompute()
